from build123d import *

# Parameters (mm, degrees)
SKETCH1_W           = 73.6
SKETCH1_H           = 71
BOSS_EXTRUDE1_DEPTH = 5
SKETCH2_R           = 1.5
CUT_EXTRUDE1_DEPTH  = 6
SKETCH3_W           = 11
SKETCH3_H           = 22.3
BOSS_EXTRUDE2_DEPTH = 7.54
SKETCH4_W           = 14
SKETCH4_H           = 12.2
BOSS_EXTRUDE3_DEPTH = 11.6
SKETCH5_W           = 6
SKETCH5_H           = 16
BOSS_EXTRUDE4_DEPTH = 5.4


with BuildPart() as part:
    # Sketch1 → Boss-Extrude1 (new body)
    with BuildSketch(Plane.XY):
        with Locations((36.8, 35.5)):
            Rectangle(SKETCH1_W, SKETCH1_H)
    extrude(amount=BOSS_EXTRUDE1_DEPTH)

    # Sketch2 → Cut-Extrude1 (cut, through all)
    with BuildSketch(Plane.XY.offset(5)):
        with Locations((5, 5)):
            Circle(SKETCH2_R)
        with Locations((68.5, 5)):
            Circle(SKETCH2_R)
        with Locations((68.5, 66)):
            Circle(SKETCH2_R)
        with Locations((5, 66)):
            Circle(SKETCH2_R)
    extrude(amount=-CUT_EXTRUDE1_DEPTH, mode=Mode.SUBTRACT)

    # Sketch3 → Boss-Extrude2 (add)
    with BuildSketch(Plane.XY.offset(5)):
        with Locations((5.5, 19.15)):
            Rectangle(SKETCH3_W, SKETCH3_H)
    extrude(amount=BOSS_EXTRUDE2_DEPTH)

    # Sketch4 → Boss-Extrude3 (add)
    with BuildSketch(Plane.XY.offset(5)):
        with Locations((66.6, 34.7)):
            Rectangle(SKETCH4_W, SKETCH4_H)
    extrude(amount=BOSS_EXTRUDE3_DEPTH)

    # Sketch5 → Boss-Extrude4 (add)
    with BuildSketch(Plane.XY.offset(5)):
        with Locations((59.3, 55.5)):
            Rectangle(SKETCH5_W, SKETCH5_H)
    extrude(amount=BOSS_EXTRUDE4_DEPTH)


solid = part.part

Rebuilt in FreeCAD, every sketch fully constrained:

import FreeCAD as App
import Part
import Sketcher
Q = App.Units.Quantity


def add_polygon(sketch, points):
    """Adds a closed chain of lines whose ends are joined by coincident constraints."""
    first, n = sketch.GeometryCount, len(points)
    for a, b in zip(points, points[1:] + points[:1]):
        sketch.addGeometry(Part.LineSegment(App.Vector(*a, 0), App.Vector(*b, 0)), False)
    for i in range(n):
        sketch.addConstraint(Sketcher.Constraint("Coincident", first + i, 2, first + (i + 1) % n, 1))

doc = App.newDocument("Part")
body = doc.addObject("PartDesign::Body", "Body")

# Sketch on XY plane
sketch1 = body.newObject("Sketcher::SketchObject", "Sketch")
sketch1.AttachmentSupport = (doc.getObject("XY_Plane"), [""])
sketch1.MapMode = "FlatFace"
add_polygon(sketch1, [(0, 71), (0, 0), (74, 0), (74, 71)])  # lines 0-3
sketch1.addConstraint([
    Sketcher.Constraint("Vertical", 0),
    Sketcher.Constraint("Horizontal", 1),
    Sketcher.Constraint("Vertical", 2),
    Sketcher.Constraint("Horizontal", 3),
    Sketcher.Constraint("Coincident", 0, 2, -1, 1),
    Sketcher.Constraint("DistanceY", 0, 2, 0, 1, Q("71 mm")),
    Sketcher.Constraint("DistanceX", 1, 1, 1, 2, Q("73.6 mm")),
])
pad1 = body.newObject("PartDesign::Pad", "Pad")
pad1.Profile = sketch1
pad1.Length = 5

# Sketch on XY plane
sketch2 = body.newObject("Sketcher::SketchObject", "Sketch001")
sketch2.AttachmentSupport = (doc.getObject("XY_Plane"), [""])
sketch2.MapMode = "FlatFace"
sketch2.AttachmentOffset = App.Placement(App.Vector(0, 0, 5), App.Rotation())
sketch2.addGeometry([
    Part.Circle(App.Vector(5, 5, 0), App.Vector(0, 0, 1), 1.5),
    Part.Circle(App.Vector(68.5, 5, 0), App.Vector(0, 0, 1), 1.5),
    Part.Circle(App.Vector(68.5, 66, 0), App.Vector(0, 0, 1), 1.5),
    Part.Circle(App.Vector(5, 66, 0), App.Vector(0, 0, 1), 1.5),
], False)
sketch2.addConstraint([
    Sketcher.Constraint("Equal", 0, 1),
    Sketcher.Constraint("Equal", 1, 2),
    Sketcher.Constraint("Equal", 2, 3),
    Sketcher.Constraint("Horizontal", 0, 3, 1, 3),
    Sketcher.Constraint("Horizontal", 2, 3, 3, 3),
    Sketcher.Constraint("Vertical", 1, 3, 2, 3),
    Sketcher.Constraint("Vertical", 0, 3, 3, 3),
    Sketcher.Constraint("Diameter", 0, Q("3 mm")),
    Sketcher.Constraint("DistanceX", -1, 1, 0, 3, Q("5 mm")),
    Sketcher.Constraint("DistanceY", -1, 1, 0, 3, Q("5 mm")),
    Sketcher.Constraint("DistanceY", -1, 1, 2, 3, Q("66 mm")),
    Sketcher.Constraint("DistanceX", -1, 1, 1, 3, Q("68.5 mm")),
])
pocket1 = body.newObject("PartDesign::Pocket", "Pocket")
pocket1.Profile = sketch2
pocket1.Type = "ThroughAll"

# Sketch on XY plane
sketch3 = body.newObject("Sketcher::SketchObject", "Sketch002")
sketch3.AttachmentSupport = (doc.getObject("XY_Plane"), [""])
sketch3.MapMode = "FlatFace"
sketch3.AttachmentOffset = App.Placement(App.Vector(0, 0, 5), App.Rotation())
add_polygon(sketch3, [(0, 30), (0, 8), (11, 8), (11, 30)])  # lines 0-3
sketch3.addConstraint([
    Sketcher.Constraint("Vertical", 0),
    Sketcher.Constraint("Horizontal", 1),
    Sketcher.Constraint("Vertical", 2),
    Sketcher.Constraint("Horizontal", 3),
    Sketcher.Constraint("PointOnObject", 0, 2, -2),
    Sketcher.Constraint("DistanceX", 1, 1, 1, 2, Q("11 mm")),
    Sketcher.Constraint("DistanceY", 0, 2, 0, 1, Q("22.3 mm")),
    Sketcher.Constraint("DistanceY", -1, 1, 0, 2, Q("8 mm")),
])
pad2 = body.newObject("PartDesign::Pad", "Pad001")
pad2.Profile = sketch3
pad2.Length = 7.54

# Sketch on XY plane
sketch4 = body.newObject("Sketcher::SketchObject", "Sketch003")
sketch4.AttachmentSupport = (doc.getObject("XY_Plane"), [""])
sketch4.MapMode = "FlatFace"
sketch4.AttachmentOffset = App.Placement(App.Vector(0, 0, 5), App.Rotation())
add_polygon(sketch4, [(60, 41), (60, 29), (74, 29), (74, 41)])  # lines 0-3
sketch4.addConstraint([
    Sketcher.Constraint("Vertical", 0),
    Sketcher.Constraint("Horizontal", 1),
    Sketcher.Constraint("Vertical", 2),
    Sketcher.Constraint("Horizontal", 3),
    Sketcher.Constraint("DistanceX", 1, 1, 1, 2, Q("14 mm")),
    Sketcher.Constraint("DistanceY", 0, 2, 0, 1, Q("12.2 mm")),
    Sketcher.Constraint("DistanceX", -1, 1, 0, 2, Q("59.6 mm")),
    Sketcher.Constraint("DistanceY", -1, 1, 0, 2, Q("28.6 mm")),
])
pad3 = body.newObject("PartDesign::Pad", "Pad002")
pad3.Profile = sketch4
pad3.Length = 11.6

# Sketch on XY plane
sketch5 = body.newObject("Sketcher::SketchObject", "Sketch004")
sketch5.AttachmentSupport = (doc.getObject("XY_Plane"), [""])
sketch5.MapMode = "FlatFace"
sketch5.AttachmentOffset = App.Placement(App.Vector(0, 0, 5), App.Rotation())
add_polygon(sketch5, [(56, 64), (56, 48), (62, 48), (62, 64)])  # lines 0-3
sketch5.addConstraint([
    Sketcher.Constraint("Vertical", 0),
    Sketcher.Constraint("Horizontal", 1),
    Sketcher.Constraint("Vertical", 2),
    Sketcher.Constraint("Horizontal", 3),
    Sketcher.Constraint("DistanceX", 1, 1, 1, 2, Q("6 mm")),
    Sketcher.Constraint("DistanceY", 0, 2, 0, 1, Q("16 mm")),
    Sketcher.Constraint("DistanceX", -1, 1, 0, 2, Q("56.3 mm")),
    Sketcher.Constraint("DistanceY", -1, 1, 0, 2, Q("47.5 mm")),
])
pad4 = body.newObject("PartDesign::Pad", "Pad003")
pad4.Profile = sketch5
pad4.Length = 5.4

doc.recompute()
